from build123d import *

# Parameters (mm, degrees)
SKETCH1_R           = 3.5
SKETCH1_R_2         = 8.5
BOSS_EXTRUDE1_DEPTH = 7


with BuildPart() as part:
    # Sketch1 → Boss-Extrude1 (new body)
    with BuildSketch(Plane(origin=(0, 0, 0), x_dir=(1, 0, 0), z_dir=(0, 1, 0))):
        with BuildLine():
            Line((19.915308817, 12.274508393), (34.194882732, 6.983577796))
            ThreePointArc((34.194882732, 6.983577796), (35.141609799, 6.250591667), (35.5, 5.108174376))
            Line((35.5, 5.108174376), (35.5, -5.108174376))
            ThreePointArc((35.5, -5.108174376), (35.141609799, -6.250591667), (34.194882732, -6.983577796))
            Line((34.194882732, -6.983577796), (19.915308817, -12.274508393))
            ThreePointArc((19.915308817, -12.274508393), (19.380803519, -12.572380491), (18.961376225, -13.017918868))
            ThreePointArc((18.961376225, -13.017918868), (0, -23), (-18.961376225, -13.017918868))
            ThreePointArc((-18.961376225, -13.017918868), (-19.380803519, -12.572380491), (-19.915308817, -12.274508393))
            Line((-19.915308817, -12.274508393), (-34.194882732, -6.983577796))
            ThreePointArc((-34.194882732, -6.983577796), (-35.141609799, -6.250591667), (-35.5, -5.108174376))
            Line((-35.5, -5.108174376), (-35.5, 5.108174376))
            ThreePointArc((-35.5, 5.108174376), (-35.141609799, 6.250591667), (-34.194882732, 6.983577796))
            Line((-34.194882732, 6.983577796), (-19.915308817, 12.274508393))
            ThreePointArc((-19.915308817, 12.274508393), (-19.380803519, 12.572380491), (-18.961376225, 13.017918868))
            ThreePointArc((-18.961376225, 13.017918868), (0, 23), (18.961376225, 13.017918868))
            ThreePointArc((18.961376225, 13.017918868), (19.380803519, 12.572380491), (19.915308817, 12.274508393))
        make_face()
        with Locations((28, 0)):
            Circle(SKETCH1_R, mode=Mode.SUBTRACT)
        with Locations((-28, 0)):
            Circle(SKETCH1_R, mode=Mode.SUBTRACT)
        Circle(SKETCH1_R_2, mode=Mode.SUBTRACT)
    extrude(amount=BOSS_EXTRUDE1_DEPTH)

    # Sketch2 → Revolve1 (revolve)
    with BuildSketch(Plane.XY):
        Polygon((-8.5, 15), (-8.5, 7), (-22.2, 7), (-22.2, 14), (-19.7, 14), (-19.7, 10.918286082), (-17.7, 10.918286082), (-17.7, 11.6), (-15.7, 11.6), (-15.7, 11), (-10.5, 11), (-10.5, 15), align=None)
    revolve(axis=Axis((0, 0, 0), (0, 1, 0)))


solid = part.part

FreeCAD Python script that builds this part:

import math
import FreeCAD as App
import Part
import Sketcher

V = App.Vector

doc = App.newDocument("Part")
params = doc.addObject("Spreadsheet::Sheet", "Params")
for row, (alias, value) in enumerate([
    ("sketch1_diameter", "7 mm"),
    ("sketch1_diameter2", "17 mm"),
    ("sketch1_radius", "2 mm"),
    ("sketch1_radius2", "23 mm"),
    ("pad1_length", "7 mm"),
    ("sketch2_width", "2 mm"),
    ("sketch2_height", "8 mm"),
    ("sketch2_height2", "4 mm"),
    ("sketch2_height3", "7 mm"),
    ("sketch2_width2", "5.2 mm"),
    ("revolution_angle", "360 deg"),
], start=1):
    params.set(f"A{row}", alias)
    params.set(f"B{row}", "=" + value)
    params.setAlias(f"B{row}", alias)

body = doc.addObject("PartDesign::Body", "Body")

# Sketch on XZ plane
sketch1 = body.newObject("Sketcher::SketchObject", "Sketch")
sketch1.AttachmentSupport = (doc.getObject("XZ_Plane"), [""])
sketch1.MapMode = "FlatFace"
sketch1.addGeometry(Part.LineSegment(V(34.194883, -6.983578, 0), V(19.915309, -12.274508, 0)), False)
sketch1.addGeometry(Part.ArcOfCircle(Part.Circle(V(20.610192, -14.149912, 0), V(0, 0, 1), 2), math.radians(110.330897), math.radians(145.528483)), False)
sketch1.addGeometry(Part.ArcOfCircle(Part.Circle(V(0, 0, 0), V(0, 0, 1), 23), math.radians(-145.528483), math.radians(-34.471517)), False)
sketch1.addGeometry(Part.ArcOfCircle(Part.Circle(V(-20.610192, -14.149912, 0), V(0, 0, 1), 2), math.radians(34.471517), math.radians(69.669103)), False)
sketch1.addGeometry(Part.LineSegment(V(-19.915309, -12.274508, 0), V(-34.194883, -6.983578, 0)), False)
sketch1.addGeometry(Part.ArcOfCircle(Part.Circle(V(-33.5, -5.108174, 0), V(0, 0, 1), 2), math.radians(-180), math.radians(-110.330897)), False)
sketch1.addGeometry(Part.LineSegment(V(-35.5, -5.108174, 0), V(-35.5, 5.108174, 0)), False)
sketch1.addGeometry(Part.ArcOfCircle(Part.Circle(V(-33.5, 5.108174, 0), V(0, 0, 1), 2), math.radians(110.330897), math.radians(180)), False)
sketch1.addGeometry(Part.LineSegment(V(-34.194883, 6.983578, 0), V(-19.915309, 12.274508, 0)), False)
sketch1.addGeometry(Part.ArcOfCircle(Part.Circle(V(-20.610192, 14.149912, 0), V(0, 0, 1), 2), math.radians(-69.669103), math.radians(-34.471517)), False)
sketch1.addGeometry(Part.ArcOfCircle(Part.Circle(V(0, 0, 0), V(0, 0, 1), 23), math.radians(34.471517), math.radians(145.528483)), False)
sketch1.addGeometry(Part.ArcOfCircle(Part.Circle(V(20.610192, 14.149912, 0), V(0, 0, 1), 2), math.radians(-145.528483), math.radians(-110.330897)), False)
sketch1.addGeometry(Part.LineSegment(V(19.915309, 12.274508, 0), V(34.194883, 6.983578, 0)), False)
sketch1.addGeometry(Part.ArcOfCircle(Part.Circle(V(33.5, 5.108174, 0), V(0, 0, 1), 2), math.radians(0), math.radians(69.669103)), False)
sketch1.addGeometry(Part.LineSegment(V(35.5, 5.108174, 0), V(35.5, -5.108174, 0)), False)
sketch1.addGeometry(Part.ArcOfCircle(Part.Circle(V(33.5, -5.108174, 0), V(0, 0, 1), 2), math.radians(-69.669103), math.radians(0)), False)
sketch1.addGeometry(Part.Circle(V(28, 0, 0), V(0, 0, 1), 3.5), False)
sketch1.addGeometry(Part.Circle(V(0, 0, 0), V(0, 0, 1), 8.5), False)
sketch1.addGeometry(Part.Circle(V(-28, 0, 0), V(0, 0, 1), 3.5), False)
sketch1.addConstraint(Sketcher.Constraint("Tangent", 0, 2, 1, 1))
sketch1.addConstraint(Sketcher.Constraint("Tangent", 1, 2, 2, 2))
sketch1.addConstraint(Sketcher.Constraint("Tangent", 2, 1, 3, 1))
sketch1.addConstraint(Sketcher.Constraint("Tangent", 3, 2, 4, 1))
sketch1.addConstraint(Sketcher.Constraint("Tangent", 4, 2, 5, 2))
sketch1.addConstraint(Sketcher.Constraint("Tangent", 5, 1, 6, 1))
sketch1.addConstraint(Sketcher.Constraint("Tangent", 6, 2, 7, 2))
sketch1.addConstraint(Sketcher.Constraint("Tangent", 7, 1, 8, 1))
sketch1.addConstraint(Sketcher.Constraint("Tangent", 8, 2, 9, 1))
sketch1.addConstraint(Sketcher.Constraint("Tangent", 9, 2, 10, 2))
sketch1.addConstraint(Sketcher.Constraint("Tangent", 10, 1, 11, 1))
sketch1.addConstraint(Sketcher.Constraint("Tangent", 11, 2, 12, 1))
sketch1.addConstraint(Sketcher.Constraint("Tangent", 12, 2, 13, 2))
sketch1.addConstraint(Sketcher.Constraint("Tangent", 13, 1, 14, 1))
sketch1.addConstraint(Sketcher.Constraint("Tangent", 14, 2, 15, 2))
sketch1.addConstraint(Sketcher.Constraint("Tangent", 15, 1, 0, 1))
sketch1.addConstraint(Sketcher.Constraint("Vertical", 6))
sketch1.addConstraint(Sketcher.Constraint("Vertical", 14))
sketch1.addConstraint(Sketcher.Constraint("Coincident", 2, 3, -1, 1))
sketch1.addConstraint(Sketcher.Constraint("Coincident", 10, 3, -1, 1))
sketch1.addConstraint(Sketcher.Constraint("Coincident", 17, 3, -1, 1))
sketch1.addConstraint(Sketcher.Constraint("Equal", 1, 3))
sketch1.addConstraint(Sketcher.Constraint("Equal", 3, 5))
sketch1.addConstraint(Sketcher.Constraint("Equal", 5, 7))
sketch1.addConstraint(Sketcher.Constraint("Equal", 7, 9))
sketch1.addConstraint(Sketcher.Constraint("Equal", 2, 10))
sketch1.addConstraint(Sketcher.Constraint("Equal", 9, 11))
sketch1.addConstraint(Sketcher.Constraint("Equal", 11, 13))
sketch1.addConstraint(Sketcher.Constraint("Equal", 13, 15))
sketch1.addConstraint(Sketcher.Constraint("Equal", 16, 18))
sketch1.addConstraint(Sketcher.Constraint("Symmetric", 5, 3, 13, 3, -1, 1))
sketch1.addConstraint(Sketcher.Constraint("Symmetric", 16, 3, 18, 3, -1, 1))
sketch1.addConstraint(Sketcher.Constraint("Symmetric", 0, 2, 8, 2, -1, 1))
sketch1.addConstraint(Sketcher.Constraint("Symmetric", 0, 2, 3, 2, -2))
sketch1.addConstraint(Sketcher.Constraint("PointOnObject", 16, 3, -1))
sketch1.addConstraint(Sketcher.Constraint("Parallel", 4, 12))
sketch1.addConstraint(Sketcher.Constraint("Diameter", 16, 7.0))
sketch1.addConstraint(Sketcher.Constraint("Diameter", 17, 17.0))
sketch1.addConstraint(Sketcher.Constraint("Radius", 1, 2.0))
sketch1.addConstraint(Sketcher.Constraint("Radius", 2, 23.0))
sketch1.addConstraint(Sketcher.Constraint("DistanceX", -1, 1, 16, 3, 28.0))
sketch1.addConstraint(Sketcher.Constraint("DistanceX", 5, 3, -1, 1, 33.5))
sketch1.addConstraint(Sketcher.Constraint("DistanceY", 6, 1, 6, 2, 10.216349))
sketch1.addConstraint(Sketcher.Constraint("Distance", 0, 15.228269))
sketch1.setExpression("Constraints[36]", "Params.sketch1_diameter")
sketch1.setExpression("Constraints[37]", "Params.sketch1_diameter2")
sketch1.setExpression("Constraints[38]", "Params.sketch1_radius")
sketch1.setExpression("Constraints[39]", "Params.sketch1_radius2")
pad1 = body.newObject("PartDesign::Pad", "Pad")
pad1.Profile = sketch1
pad1.setExpression("Length", "Params.pad1_length")
pad1.Reversed = True

# Sketch on XY plane
sketch2 = body.newObject("Sketcher::SketchObject", "Sketch001")
sketch2.AttachmentSupport = (doc.getObject("XY_Plane"), [""])
sketch2.MapMode = "FlatFace"
sketch2.addGeometry(Part.LineSegment(V(-8.5, 7, 0), V(-8.5, 15, 0)), False)
sketch2.addGeometry(Part.LineSegment(V(-8.5, 15, 0), V(-10.5, 15, 0)), False)
sketch2.addGeometry(Part.LineSegment(V(-10.5, 15, 0), V(-10.5, 11, 0)), False)
sketch2.addGeometry(Part.LineSegment(V(-10.5, 11, 0), V(-15.7, 11, 0)), False)
sketch2.addGeometry(Part.LineSegment(V(-15.7, 11, 0), V(-15.7, 11.6, 0)), False)
sketch2.addGeometry(Part.LineSegment(V(-15.7, 11.6, 0), V(-17.7, 11.6, 0)), False)
sketch2.addGeometry(Part.LineSegment(V(-17.7, 11.6, 0), V(-17.7, 10.918286, 0)), False)
sketch2.addGeometry(Part.LineSegment(V(-17.7, 10.918286, 0), V(-19.7, 10.918286, 0)), False)
sketch2.addGeometry(Part.LineSegment(V(-19.7, 10.918286, 0), V(-19.7, 14, 0)), False)
sketch2.addGeometry(Part.LineSegment(V(-19.7, 14, 0), V(-22.2, 14, 0)), False)
sketch2.addGeometry(Part.LineSegment(V(-22.2, 14, 0), V(-22.2, 7, 0)), False)
sketch2.addGeometry(Part.LineSegment(V(-22.2, 7, 0), V(-8.5, 7, 0)), False)
sketch2.addConstraint(Sketcher.Constraint("Coincident", 0, 2, 1, 1))
sketch2.addConstraint(Sketcher.Constraint("Coincident", 1, 2, 2, 1))
sketch2.addConstraint(Sketcher.Constraint("Coincident", 2, 2, 3, 1))
sketch2.addConstraint(Sketcher.Constraint("Coincident", 3, 2, 4, 1))
sketch2.addConstraint(Sketcher.Constraint("Coincident", 4, 2, 5, 1))
sketch2.addConstraint(Sketcher.Constraint("Coincident", 5, 2, 6, 1))
sketch2.addConstraint(Sketcher.Constraint("Coincident", 6, 2, 7, 1))
sketch2.addConstraint(Sketcher.Constraint("Coincident", 7, 2, 8, 1))
sketch2.addConstraint(Sketcher.Constraint("Coincident", 8, 2, 9, 1))
sketch2.addConstraint(Sketcher.Constraint("Coincident", 9, 2, 10, 1))
sketch2.addConstraint(Sketcher.Constraint("Coincident", 10, 2, 11, 1))
sketch2.addConstraint(Sketcher.Constraint("Coincident", 11, 2, 0, 1))
sketch2.addConstraint(Sketcher.Constraint("Vertical", 0))
sketch2.addConstraint(Sketcher.Constraint("Horizontal", 1))
sketch2.addConstraint(Sketcher.Constraint("Vertical", 2))
sketch2.addConstraint(Sketcher.Constraint("Horizontal", 3))
sketch2.addConstraint(Sketcher.Constraint("Vertical", 4))
sketch2.addConstraint(Sketcher.Constraint("Horizontal", 5))
sketch2.addConstraint(Sketcher.Constraint("Vertical", 6))
sketch2.addConstraint(Sketcher.Constraint("Horizontal", 7))
sketch2.addConstraint(Sketcher.Constraint("Vertical", 8))
sketch2.addConstraint(Sketcher.Constraint("Horizontal", 9))
sketch2.addConstraint(Sketcher.Constraint("Vertical", 10))
sketch2.addConstraint(Sketcher.Constraint("Horizontal", 11))
sketch2.addConstraint(Sketcher.Constraint("Equal", 1, 5))
sketch2.addConstraint(Sketcher.Constraint("Equal", 5, 7))
sketch2.addConstraint(Sketcher.Constraint("DistanceX", 1, 2, 1, 1, 2.0))
sketch2.addConstraint(Sketcher.Constraint("DistanceY", 0, 1, 0, 2, 8.0))
sketch2.addConstraint(Sketcher.Constraint("DistanceY", 2, 2, 2, 1, 4.0))
sketch2.addConstraint(Sketcher.Constraint("DistanceY", 10, 2, 10, 1, 7.0))
sketch2.addConstraint(Sketcher.Constraint("DistanceX", 3, 2, 3, 1, 5.2))
sketch2.addConstraint(Sketcher.Constraint("DistanceX", 9, 2, 9, 1, 2.5))
sketch2.addConstraint(Sketcher.Constraint("DistanceY", 4, 1, 4, 2, 0.6))
sketch2.addConstraint(Sketcher.Constraint("DistanceY", -1, 1, 0, 2, 15.0))
sketch2.addConstraint(Sketcher.Constraint("DistanceX", 0, 2, -1, 1, 8.5))
sketch2.addConstraint(Sketcher.Constraint("DistanceY", 6, 2, 6, 1, 0.681714))
sketch2.setExpression("Constraints[26]", "Params.sketch2_width")
sketch2.setExpression("Constraints[27]", "Params.sketch2_height")
sketch2.setExpression("Constraints[28]", "Params.sketch2_height2")
sketch2.setExpression("Constraints[29]", "Params.sketch2_height3")
sketch2.setExpression("Constraints[30]", "Params.sketch2_width2")
revolution = body.newObject("PartDesign::Revolution", "Revolution")
revolution.Profile = sketch2
revolution.ReferenceAxis = (sketch2, ["V_Axis"])
revolution.setExpression("Angle", "Params.revolution_angle")

doc.recompute()
